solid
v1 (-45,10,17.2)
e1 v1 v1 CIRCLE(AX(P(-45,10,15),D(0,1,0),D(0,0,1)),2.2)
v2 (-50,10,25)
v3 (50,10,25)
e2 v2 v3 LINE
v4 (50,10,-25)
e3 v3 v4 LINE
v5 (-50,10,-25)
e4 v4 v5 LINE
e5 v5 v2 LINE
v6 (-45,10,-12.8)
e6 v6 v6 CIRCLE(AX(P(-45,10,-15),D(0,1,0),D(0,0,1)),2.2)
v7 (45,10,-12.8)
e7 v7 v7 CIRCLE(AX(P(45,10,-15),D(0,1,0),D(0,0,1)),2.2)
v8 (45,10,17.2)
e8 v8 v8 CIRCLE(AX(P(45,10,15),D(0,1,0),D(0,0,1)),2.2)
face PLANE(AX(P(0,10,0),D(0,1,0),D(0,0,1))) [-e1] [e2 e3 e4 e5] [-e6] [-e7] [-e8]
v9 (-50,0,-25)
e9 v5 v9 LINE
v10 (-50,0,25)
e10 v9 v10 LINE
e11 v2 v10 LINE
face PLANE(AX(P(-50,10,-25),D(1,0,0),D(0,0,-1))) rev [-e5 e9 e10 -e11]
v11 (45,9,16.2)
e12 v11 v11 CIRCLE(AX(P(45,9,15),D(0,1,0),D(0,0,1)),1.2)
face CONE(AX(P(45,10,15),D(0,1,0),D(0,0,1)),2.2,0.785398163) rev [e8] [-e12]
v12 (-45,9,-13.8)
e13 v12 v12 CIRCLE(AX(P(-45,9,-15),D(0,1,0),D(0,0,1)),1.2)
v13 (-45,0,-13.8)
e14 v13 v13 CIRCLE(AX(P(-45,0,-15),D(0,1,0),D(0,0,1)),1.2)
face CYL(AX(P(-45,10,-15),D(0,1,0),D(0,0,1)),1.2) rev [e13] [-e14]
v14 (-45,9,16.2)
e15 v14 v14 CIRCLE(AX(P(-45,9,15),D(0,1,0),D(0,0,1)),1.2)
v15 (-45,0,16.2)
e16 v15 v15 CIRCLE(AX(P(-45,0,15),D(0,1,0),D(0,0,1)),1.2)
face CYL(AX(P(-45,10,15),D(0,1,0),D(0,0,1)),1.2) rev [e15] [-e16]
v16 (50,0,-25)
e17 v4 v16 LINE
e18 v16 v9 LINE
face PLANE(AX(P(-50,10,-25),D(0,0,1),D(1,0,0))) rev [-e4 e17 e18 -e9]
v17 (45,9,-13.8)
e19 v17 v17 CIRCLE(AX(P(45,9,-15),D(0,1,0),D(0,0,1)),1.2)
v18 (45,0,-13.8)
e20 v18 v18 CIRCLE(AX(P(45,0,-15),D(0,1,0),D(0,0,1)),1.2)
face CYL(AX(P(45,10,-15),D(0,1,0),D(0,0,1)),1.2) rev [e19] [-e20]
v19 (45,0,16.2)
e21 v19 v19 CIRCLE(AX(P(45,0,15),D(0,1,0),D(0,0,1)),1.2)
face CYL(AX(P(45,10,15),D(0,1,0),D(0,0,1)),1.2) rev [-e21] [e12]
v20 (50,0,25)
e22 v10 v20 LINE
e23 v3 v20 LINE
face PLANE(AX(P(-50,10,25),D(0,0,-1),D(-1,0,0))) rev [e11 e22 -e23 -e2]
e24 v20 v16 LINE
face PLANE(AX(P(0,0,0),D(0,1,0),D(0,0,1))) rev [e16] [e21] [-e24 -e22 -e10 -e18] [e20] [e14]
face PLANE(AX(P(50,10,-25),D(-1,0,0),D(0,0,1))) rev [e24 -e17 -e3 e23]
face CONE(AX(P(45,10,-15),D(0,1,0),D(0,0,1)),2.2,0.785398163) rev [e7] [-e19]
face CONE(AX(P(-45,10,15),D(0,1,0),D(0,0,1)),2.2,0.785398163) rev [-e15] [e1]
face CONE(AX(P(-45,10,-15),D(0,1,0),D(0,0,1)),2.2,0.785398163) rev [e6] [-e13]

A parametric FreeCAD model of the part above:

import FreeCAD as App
import Part
import Sketcher
from FreeCAD import Vector
Q = App.Units.Quantity


def add_polygon(sketch, points):
    """Adds a closed chain of lines whose ends are joined by coincident constraints."""
    first, n = sketch.GeometryCount, len(points)
    for a, b in zip(points, points[1:] + points[:1]):
        sketch.addGeometry(Part.LineSegment(App.Vector(*a, 0), App.Vector(*b, 0)), False)
    for i in range(n):
        sketch.addConstraint(Sketcher.Constraint("Coincident", first + i, 2, first + (i + 1) % n, 1))

doc = App.newDocument("Part")
body = doc.addObject("PartDesign::Body", "Body")

sketch1 = body.newObject("Sketcher::SketchObject", "Sketch")
sketch1.AttachmentSupport = (doc.getObject("XZ_Plane"), [""])
sketch1.MapMode = "FlatFace"
add_polygon(sketch1, [(-50, -25), (-50, 25), (50, 25), (50, -25)])
sketch1.addConstraint([
    Sketcher.Constraint("Vertical", 0),
    Sketcher.Constraint("Horizontal", 1),
    Sketcher.Constraint("Vertical", 2),
    Sketcher.Constraint("Horizontal", 3),
    Sketcher.Constraint("Symmetric", 0, 2, 2, 2, -1, 1),
    Sketcher.Constraint("DistanceX", 1, 1, 1, 2, Q("100 mm")),
    Sketcher.Constraint("DistanceY", 0, 1, 0, 2, Q("50 mm")),
])
pad1 = body.newObject("PartDesign::Pad", "Pad")
pad1.Profile = sketch1
pad1.Length = 10
pad1.Reversed = True

sketch2 = body.newObject("Sketcher::SketchObject", "Sketch001")
sketch2.AttachmentSupport = (doc.getObject("XZ_Plane"), [""])
sketch2.MapMode = "FlatFace"
sketch2.AttachmentOffset = App.Placement(Vector(0, 0, -10), App.Rotation())
sketch2.addGeometry([
    Part.Circle(Vector(-45, -15, 0), Vector(0, 0, 1), 1.2),
    Part.Circle(Vector(45, -15, 0), Vector(0, 0, 1), 1.2),
    Part.Circle(Vector(45, 15, 0), Vector(0, 0, 1), 1.2),
    Part.Circle(Vector(-45, 15, 0), Vector(0, 0, 1), 1.2),
], False)
sketch2.addConstraint([
    Sketcher.Constraint("Equal", 0, 1),
    Sketcher.Constraint("Equal", 1, 2),
    Sketcher.Constraint("Equal", 2, 3),
    Sketcher.Constraint("Symmetric", 0, 3, 2, 3, -1, 1),
    Sketcher.Constraint("Symmetric", 1, 3, 3, 3, -1, 1),
    Sketcher.Constraint("Symmetric", 0, 3, 1, 3, -2),
    Sketcher.Constraint("Diameter", 0, Q("2.4 mm")),
    Sketcher.Constraint("DistanceX", 0, 3, -1, 1, Q("45 mm")),
    Sketcher.Constraint("DistanceY", 0, 3, -1, 1, Q("15 mm")),
])
doc.recompute()
hole = body.newObject("PartDesign::Hole", "Hole")
hole.Profile = sketch2
hole.ThreadType = "None"
hole.Diameter = 2.4
hole.DepthType = "ThroughAll"
hole.HoleCutType = "Countersink"
hole.HoleCutDiameter = 4.4
hole.HoleCutCountersinkAngle = 90
hole.Reversed = True

doc.recompute()
